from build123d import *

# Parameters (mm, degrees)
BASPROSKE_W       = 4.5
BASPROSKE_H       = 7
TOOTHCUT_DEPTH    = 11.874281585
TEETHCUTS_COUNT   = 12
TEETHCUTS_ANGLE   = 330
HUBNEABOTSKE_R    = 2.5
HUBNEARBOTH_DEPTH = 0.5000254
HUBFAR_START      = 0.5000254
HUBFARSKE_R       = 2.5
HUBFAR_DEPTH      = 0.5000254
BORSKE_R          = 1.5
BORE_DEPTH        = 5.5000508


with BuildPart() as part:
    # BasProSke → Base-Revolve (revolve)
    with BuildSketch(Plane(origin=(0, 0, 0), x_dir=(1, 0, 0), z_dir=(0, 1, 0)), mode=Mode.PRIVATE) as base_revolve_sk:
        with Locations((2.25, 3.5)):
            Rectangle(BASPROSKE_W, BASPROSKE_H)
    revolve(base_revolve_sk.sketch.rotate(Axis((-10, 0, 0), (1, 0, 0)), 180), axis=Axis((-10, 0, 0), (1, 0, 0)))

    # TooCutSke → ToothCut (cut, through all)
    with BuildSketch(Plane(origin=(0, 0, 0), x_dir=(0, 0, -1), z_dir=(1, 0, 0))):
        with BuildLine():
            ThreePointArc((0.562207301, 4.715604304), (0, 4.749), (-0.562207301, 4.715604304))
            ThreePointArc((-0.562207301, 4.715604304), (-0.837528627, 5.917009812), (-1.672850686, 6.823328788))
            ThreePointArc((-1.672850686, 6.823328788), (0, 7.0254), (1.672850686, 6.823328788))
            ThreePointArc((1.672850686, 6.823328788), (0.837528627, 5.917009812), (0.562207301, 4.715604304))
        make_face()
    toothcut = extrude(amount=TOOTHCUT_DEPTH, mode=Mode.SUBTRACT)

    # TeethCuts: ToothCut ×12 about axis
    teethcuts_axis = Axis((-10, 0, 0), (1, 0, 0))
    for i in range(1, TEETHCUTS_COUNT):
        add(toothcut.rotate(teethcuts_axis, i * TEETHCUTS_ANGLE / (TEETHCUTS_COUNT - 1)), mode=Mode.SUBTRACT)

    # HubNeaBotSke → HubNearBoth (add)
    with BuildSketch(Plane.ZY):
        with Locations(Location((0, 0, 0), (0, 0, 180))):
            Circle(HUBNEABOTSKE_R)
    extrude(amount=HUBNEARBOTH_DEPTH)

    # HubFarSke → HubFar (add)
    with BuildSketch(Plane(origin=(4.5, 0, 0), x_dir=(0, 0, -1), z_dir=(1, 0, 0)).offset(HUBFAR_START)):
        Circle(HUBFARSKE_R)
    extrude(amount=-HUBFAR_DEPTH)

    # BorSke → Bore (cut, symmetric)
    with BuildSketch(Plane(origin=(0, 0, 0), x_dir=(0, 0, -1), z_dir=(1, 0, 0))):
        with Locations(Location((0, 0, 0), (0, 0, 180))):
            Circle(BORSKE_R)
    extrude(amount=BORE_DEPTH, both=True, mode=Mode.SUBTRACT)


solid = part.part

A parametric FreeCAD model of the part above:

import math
import FreeCAD as App
import Part
import Sketcher
from FreeCAD import Vector
Q = App.Units.Quantity


def add_polygon(sketch, points):
    """Adds a closed chain of lines whose ends are joined by coincident constraints."""
    first, n = sketch.GeometryCount, len(points)
    for a, b in zip(points, points[1:] + points[:1]):
        sketch.addGeometry(Part.LineSegment(App.Vector(*a, 0), App.Vector(*b, 0)), False)
    for i in range(n):
        sketch.addConstraint(Sketcher.Constraint("Coincident", first + i, 2, first + (i + 1) % n, 1))

doc = App.newDocument("Part")
body = doc.addObject("PartDesign::Body", "Body")

# Sketch on XZ plane
sketch1 = doc.addObject("Sketcher::SketchObject", "Sketch")
body.addObject(sketch1)
sketch1.AttachmentSupport = (doc.XZ_Plane, [""])
sketch1.MapMode = "FlatFace"
add_polygon(sketch1, [(0, -7), (0, 0), (4.5, 0), (4.5, -7)])  # lines 0-3
sketch1.addConstraint([
    Sketcher.Constraint("Vertical", 0),
    Sketcher.Constraint("Horizontal", 1),
    Sketcher.Constraint("Vertical", 2),
    Sketcher.Constraint("Horizontal", 3),
    Sketcher.Constraint("Coincident", 0, 2, -1, 1),
    Sketcher.Constraint("DistanceY", 0, 1, 0, 2, Q("7 mm")),
    Sketcher.Constraint("DistanceX", 1, 1, 1, 2, Q("4.5 mm")),
])
revolution = doc.addObject("PartDesign::Revolution", "Revolution")
body.addObject(revolution)
revolution.Profile = sketch1
revolution.ReferenceAxis = (sketch1, ["H_Axis"])
revolution.Angle = 360

# Sketch on YZ plane
sketch2 = doc.addObject("Sketcher::SketchObject", "Sketch001")
body.addObject(sketch2)
sketch2.AttachmentSupport = (doc.YZ_Plane, [""])
sketch2.MapMode = "FlatFace"
sketch2.addGeometry([
    Part.ArcOfCircle(Part.Circle(Vector(0, 0, 0), Vector(0, 0, 1), 4.7), math.radians(-6.8), math.radians(6.8)),
    Part.ArcOfCircle(Part.Circle(Vector(4.8, -3, 0), Vector(0, 0, 1), 2.4), math.radians(32), math.radians(92)),
    Part.ArcOfCircle(Part.Circle(Vector(0, 0, 0), Vector(0, 0, 1), 7), math.radians(-14), math.radians(14)),
    Part.ArcOfCircle(Part.Circle(Vector(4.8, 3, 0), Vector(0, 0, 1), 2.4), math.radians(-92), math.radians(-32)),
], False)
sketch2.addConstraint([
    Sketcher.Constraint("Coincident", 0, 1, 1, 2),
    Sketcher.Constraint("Coincident", 1, 1, 2, 1),
    Sketcher.Constraint("Coincident", 2, 2, 3, 2),
    Sketcher.Constraint("Coincident", 3, 1, 0, 2),
    Sketcher.Constraint("Coincident", 0, 3, -1, 1),
    Sketcher.Constraint("Coincident", 2, 3, -1, 1),
    Sketcher.Constraint("Equal", 1, 3),
    Sketcher.Constraint("Symmetric", 1, 3, 3, 3, -1),
    Sketcher.Constraint("Radius", 1, Q("2.4 mm")),
    Sketcher.Constraint("Radius", 0, Q("4.749 mm")),
    Sketcher.Constraint("Radius", 2, Q("7.0254 mm")),
    Sketcher.Constraint("DistanceY", 1, 1, 2, 2, Q("3.345701 mm")),
    Sketcher.Constraint("DistanceX", -1, 1, 1, 3, Q("4.798181 mm")),
])
pocket1 = doc.addObject("PartDesign::Pocket", "Pocket")
body.addObject(pocket1)
pocket1.Profile = sketch2
pocket1.Type = "ThroughAll"
pocket1.Reversed = True
doc.recompute()

polarpattern = doc.addObject("PartDesign::PolarPattern", "PolarPattern")
body.addObject(polarpattern)
polarpattern.Originals = [pocket1]
polarpattern.Axis = (doc.X_Axis, [""])
polarpattern.Angle = 360
polarpattern.Occurrences = 12
body.Tip = polarpattern

# Sketch on YZ plane
sketch3 = doc.addObject("Sketcher::SketchObject", "Sketch002")
body.addObject(sketch3)
sketch3.AttachmentSupport = (doc.YZ_Plane, [""])
sketch3.MapMode = "FlatFace"
sketch3.addGeometry(Part.Circle(Vector(0, 0, 0), Vector(0, 0, 1), 2.5), False)
sketch3.addConstraint([
    Sketcher.Constraint("Coincident", 0, 3, -1, 1),
    Sketcher.Constraint("Diameter", 0, Q("5 mm")),
])
pad1 = doc.addObject("PartDesign::Pad", "Pad")
body.addObject(pad1)
pad1.Profile = sketch3
pad1.Length = 0.500025
pad1.Reversed = True

# Sketch on YZ plane
sketch4 = doc.addObject("Sketcher::SketchObject", "Sketch003")
body.addObject(sketch4)
sketch4.AttachmentSupport = (doc.YZ_Plane, [""])
sketch4.MapMode = "FlatFace"
sketch4.AttachmentOffset = App.Placement(Vector(0, 0, 5.000025), App.Rotation())
sketch4.addGeometry(Part.Circle(Vector(0, 0, 0), Vector(0, 0, 1), 2.5), False)
sketch4.addConstraint([
    Sketcher.Constraint("Coincident", 0, 3, -1, 1),
    Sketcher.Constraint("Diameter", 0, Q("5 mm")),
])
pad2 = doc.addObject("PartDesign::Pad", "Pad001")
body.addObject(pad2)
pad2.Profile = sketch4
pad2.Length = 0.500025
pad2.Reversed = True

# Sketch on YZ plane
sketch5 = doc.addObject("Sketcher::SketchObject", "Sketch004")
body.addObject(sketch5)
sketch5.AttachmentSupport = (doc.YZ_Plane, [""])
sketch5.MapMode = "FlatFace"
sketch5.addGeometry(Part.Circle(Vector(0, 0, 0), Vector(0, 0, 1), 1.5), False)
sketch5.addConstraint([
    Sketcher.Constraint("Coincident", 0, 3, -1, 1),
    Sketcher.Constraint("Diameter", 0, Q("3 mm")),
])
pocket2 = doc.addObject("PartDesign::Pocket", "Pocket001")
body.addObject(pocket2)
pocket2.Profile = sketch5
pocket2.Length = 11.000102
pocket2.Midplane = True

doc.recompute()
